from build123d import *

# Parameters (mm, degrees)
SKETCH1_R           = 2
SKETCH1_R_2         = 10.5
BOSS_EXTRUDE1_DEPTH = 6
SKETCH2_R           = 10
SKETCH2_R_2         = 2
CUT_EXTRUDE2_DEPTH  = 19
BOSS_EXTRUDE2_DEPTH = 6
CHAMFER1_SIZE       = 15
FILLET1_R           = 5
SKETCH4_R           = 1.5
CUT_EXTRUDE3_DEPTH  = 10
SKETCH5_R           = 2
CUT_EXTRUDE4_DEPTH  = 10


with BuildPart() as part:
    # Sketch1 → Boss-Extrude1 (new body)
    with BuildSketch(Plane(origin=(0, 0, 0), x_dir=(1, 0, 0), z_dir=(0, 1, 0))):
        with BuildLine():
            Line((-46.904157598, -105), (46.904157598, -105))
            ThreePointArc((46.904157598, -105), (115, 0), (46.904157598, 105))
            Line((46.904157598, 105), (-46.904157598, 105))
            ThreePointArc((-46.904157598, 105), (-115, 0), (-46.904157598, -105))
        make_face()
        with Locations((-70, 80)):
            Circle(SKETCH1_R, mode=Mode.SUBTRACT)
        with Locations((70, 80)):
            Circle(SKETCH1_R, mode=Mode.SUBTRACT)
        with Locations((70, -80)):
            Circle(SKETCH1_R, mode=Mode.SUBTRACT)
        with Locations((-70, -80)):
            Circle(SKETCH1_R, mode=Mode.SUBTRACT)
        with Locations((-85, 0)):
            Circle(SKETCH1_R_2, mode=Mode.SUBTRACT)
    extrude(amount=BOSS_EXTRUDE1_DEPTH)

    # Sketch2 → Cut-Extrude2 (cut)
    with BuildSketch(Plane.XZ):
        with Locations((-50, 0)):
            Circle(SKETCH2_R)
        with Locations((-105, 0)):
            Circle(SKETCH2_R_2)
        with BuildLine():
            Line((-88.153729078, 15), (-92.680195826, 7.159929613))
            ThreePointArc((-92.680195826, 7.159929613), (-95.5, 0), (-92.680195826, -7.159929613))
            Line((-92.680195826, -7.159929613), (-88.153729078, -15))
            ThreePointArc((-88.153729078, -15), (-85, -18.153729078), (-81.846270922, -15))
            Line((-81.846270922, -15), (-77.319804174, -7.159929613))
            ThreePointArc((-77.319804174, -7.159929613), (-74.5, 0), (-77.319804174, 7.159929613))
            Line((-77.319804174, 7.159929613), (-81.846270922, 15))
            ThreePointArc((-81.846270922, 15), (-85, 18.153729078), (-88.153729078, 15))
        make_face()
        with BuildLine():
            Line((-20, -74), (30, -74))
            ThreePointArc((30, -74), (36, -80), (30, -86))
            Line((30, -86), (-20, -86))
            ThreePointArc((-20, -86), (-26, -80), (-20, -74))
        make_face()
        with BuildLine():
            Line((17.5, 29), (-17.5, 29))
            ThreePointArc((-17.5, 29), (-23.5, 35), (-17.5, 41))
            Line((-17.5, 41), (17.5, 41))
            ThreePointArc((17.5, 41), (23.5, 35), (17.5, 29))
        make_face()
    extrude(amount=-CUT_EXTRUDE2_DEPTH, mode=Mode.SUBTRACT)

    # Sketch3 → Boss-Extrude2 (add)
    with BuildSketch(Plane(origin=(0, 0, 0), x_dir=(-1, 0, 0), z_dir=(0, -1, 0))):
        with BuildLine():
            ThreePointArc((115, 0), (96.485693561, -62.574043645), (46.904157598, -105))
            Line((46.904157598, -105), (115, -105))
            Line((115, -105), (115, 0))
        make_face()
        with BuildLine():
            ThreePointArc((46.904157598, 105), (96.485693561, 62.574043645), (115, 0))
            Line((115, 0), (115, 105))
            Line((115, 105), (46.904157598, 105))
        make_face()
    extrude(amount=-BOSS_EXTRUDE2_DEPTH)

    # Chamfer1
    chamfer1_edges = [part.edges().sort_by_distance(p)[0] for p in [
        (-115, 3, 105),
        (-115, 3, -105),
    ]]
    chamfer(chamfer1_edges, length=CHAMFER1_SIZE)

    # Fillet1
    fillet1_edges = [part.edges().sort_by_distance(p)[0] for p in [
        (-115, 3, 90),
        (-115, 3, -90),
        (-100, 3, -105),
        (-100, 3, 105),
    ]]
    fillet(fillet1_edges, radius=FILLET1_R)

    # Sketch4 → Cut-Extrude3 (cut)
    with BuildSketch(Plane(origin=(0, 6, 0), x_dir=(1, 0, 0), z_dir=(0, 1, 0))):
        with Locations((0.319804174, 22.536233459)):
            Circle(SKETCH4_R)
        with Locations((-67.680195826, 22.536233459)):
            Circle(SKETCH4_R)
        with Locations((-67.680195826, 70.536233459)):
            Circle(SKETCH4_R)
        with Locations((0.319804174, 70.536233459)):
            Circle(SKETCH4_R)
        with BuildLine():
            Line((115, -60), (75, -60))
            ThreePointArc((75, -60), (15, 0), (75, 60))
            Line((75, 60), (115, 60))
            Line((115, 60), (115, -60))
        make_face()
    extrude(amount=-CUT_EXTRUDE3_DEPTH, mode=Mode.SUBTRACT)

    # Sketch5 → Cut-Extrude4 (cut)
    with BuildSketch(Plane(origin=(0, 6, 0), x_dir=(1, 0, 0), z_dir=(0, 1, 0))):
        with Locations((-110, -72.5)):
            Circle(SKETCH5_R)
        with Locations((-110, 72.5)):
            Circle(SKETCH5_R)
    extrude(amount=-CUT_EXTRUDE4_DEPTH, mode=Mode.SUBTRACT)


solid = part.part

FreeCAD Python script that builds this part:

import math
import FreeCAD as App
import Part
import Sketcher
Q = App.Units.Quantity


def edges_at(feature, points):
    """Names of the edges that pass closest to the given points."""
    edges = feature.Shape.Edges
    near = lambda p: min(range(len(edges)), key=lambda i: edges[i].distToShape(Part.Vertex(*p))[0])
    return sorted({f"Edge{near(p) + 1}" for p in points})

doc = App.newDocument("Part")
params = doc.addObject("Spreadsheet::Sheet", "Params")
for row, (alias, value) in enumerate([
    ("sketch1_diameter", "4 mm"),
    ("sketch1_diameter2", "21 mm"),
    ("sketch1_radius", "115 mm"),
    ("pad1_length", "6 mm"),
    ("sketch2_diameter", "20 mm"),
    ("sketch2_diameter2", "4 mm"),
    ("sketch2_radius", "6 mm"),
    ("sketch2_radius2", "10.5 mm"),
    ("sketch2_width", "50 mm"),
    ("pocket1_length", "19 mm"),
    ("sketch3_radius", "115 mm"),
    ("sketch3_height", "105 mm"),
    ("pad2_length", "6 mm"),
    ("chamfer_size", "15 mm"),
    ("fillet_radius", "5 mm"),
    ("sketch4_diameter", "3 mm"),
    ("sketch4_radius", "60 mm"),
    ("sketch4_width", "40 mm"),
    ("pocket2_length", "10 mm"),
    ("sketch5_diameter", "4 mm"),
    ("pocket3_length", "10 mm"),
], start=1):
    params.set(f"A{row}", alias)
    params.set(f"B{row}", "=" + value)
    params.setAlias(f"B{row}", alias)

body = doc.addObject("PartDesign::Body", "Body")

sketch1 = body.newObject("Sketcher::SketchObject", "Sketch")
sketch1.AttachmentSupport = (doc.getObject("XZ_Plane"), [""])
sketch1.MapMode = "FlatFace"
sketch1.addGeometry([
    Part.LineSegment(App.Vector(-46.9, 105, 0), App.Vector(46.9, 105, 0)),
    Part.ArcOfCircle(Part.Circle(App.Vector(0, 0, 0), App.Vector(0, 0, 1), 115), math.radians(-66), math.radians(66)),
    Part.LineSegment(App.Vector(46.9, -105, 0), App.Vector(-46.9, -105, 0)),
    Part.ArcOfCircle(Part.Circle(App.Vector(0, 0, 0), App.Vector(0, 0, 1), 115), math.radians(114), math.radians(246)),
    Part.Circle(App.Vector(-70, 80, 0), App.Vector(0, 0, 1), 2),
    Part.Circle(App.Vector(70, 80, 0), App.Vector(0, 0, 1), 2),
    Part.Circle(App.Vector(-85, 0, 0), App.Vector(0, 0, 1), 10.5),
    Part.Circle(App.Vector(-70, -80, 0), App.Vector(0, 0, 1), 2),
    Part.Circle(App.Vector(70, -80, 0), App.Vector(0, 0, 1), 2),
], False)
sketch1.addConstraint([
    Sketcher.Constraint("Coincident", 0, 2, 1, 2),
    Sketcher.Constraint("Coincident", 1, 1, 2, 1),
    Sketcher.Constraint("Coincident", 2, 2, 3, 2),
    Sketcher.Constraint("Coincident", 3, 1, 0, 1),
    Sketcher.Constraint("Horizontal", 0),
    Sketcher.Constraint("Horizontal", 2),
    Sketcher.Constraint("Coincident", 1, 3, -1, 1),
    Sketcher.Constraint("Coincident", 3, 3, -1, 1),
    Sketcher.Constraint("Equal", 1, 3),
    Sketcher.Constraint("Equal", 4, 5),
    Sketcher.Constraint("Equal", 5, 7),
    Sketcher.Constraint("Equal", 7, 8),
    Sketcher.Constraint("Symmetric", 5, 3, 7, 3, -1, 1),
    Sketcher.Constraint("Symmetric", 4, 3, 8, 3, -1, 1),
    Sketcher.Constraint("Symmetric", 4, 3, 5, 3, -2),
    Sketcher.Constraint("PointOnObject", 6, 3, -1),
    Sketcher.Constraint("Vertical", 0, 2, 1, 1),
    Sketcher.Constraint("Diameter", 4, Q("4 mm")),
    Sketcher.Constraint("Diameter", 6, Q("21 mm")),
    Sketcher.Constraint("Radius", 1, Q("115 mm")),
    Sketcher.Constraint("DistanceX", 4, 3, -1, 1, Q("70 mm")),
    Sketcher.Constraint("DistanceY", -1, 1, 4, 3, Q("80 mm")),
    Sketcher.Constraint("DistanceX", 6, 3, -1, 1, Q("85 mm")),
    Sketcher.Constraint("DistanceY", -1, 1, 0, 2, Q("105 mm")),
])
sketch1.setExpression("Constraints[17]", "Params.sketch1_diameter")
sketch1.setExpression("Constraints[18]", "Params.sketch1_diameter2")
sketch1.setExpression("Constraints[19]", "Params.sketch1_radius")
pad1 = body.newObject("PartDesign::Pad", "Pad")
pad1.Profile = sketch1
pad1.setExpression("Length", "Params.pad1_length")
pad1.Reversed = True

sketch2 = body.newObject("Sketcher::SketchObject", "Sketch001")
sketch2.AttachmentSupport = (doc.getObject("XZ_Plane"), [""])
sketch2.MapMode = "FlatFace"
sketch2.addGeometry([
    Part.Circle(App.Vector(-50, 0, 0), App.Vector(0, 0, 1), 10),
    Part.Circle(App.Vector(-105, 0, 0), App.Vector(0, 0, 1), 2),
    Part.LineSegment(App.Vector(-88.2, 15, 0), App.Vector(-92.7, 7.2, 0)),
    Part.ArcOfCircle(Part.Circle(App.Vector(-85, 0, 0), App.Vector(0, 0, 1), 10.5), math.radians(137), math.radians(223)),
    Part.LineSegment(App.Vector(-92.7, -7.2, 0), App.Vector(-88.2, -15, 0)),
    Part.ArcOfCircle(Part.Circle(App.Vector(-85, -15, 0), App.Vector(0, 0, 1), 3.2), math.radians(180), math.radians(360)),
    Part.LineSegment(App.Vector(-81.8, -15, 0), App.Vector(-77.3, -7.2, 0)),
    Part.ArcOfCircle(Part.Circle(App.Vector(-85, 0, 0), App.Vector(0, 0, 1), 10.5), math.radians(-43), math.radians(43)),
    Part.LineSegment(App.Vector(-77.3, 7.2, 0), App.Vector(-81.8, 15, 0)),
    Part.ArcOfCircle(Part.Circle(App.Vector(-85, 15, 0), App.Vector(0, 0, 1), 3.2), math.radians(0), math.radians(180)),
    Part.LineSegment(App.Vector(30, -74, 0), App.Vector(-20, -74, 0)),
    Part.ArcOfCircle(Part.Circle(App.Vector(-20, -80, 0), App.Vector(0, 0, 1), 6), math.radians(90), math.radians(270)),
    Part.LineSegment(App.Vector(-20, -86, 0), App.Vector(30, -86, 0)),
    Part.ArcOfCircle(Part.Circle(App.Vector(30, -80, 0), App.Vector(0, 0, 1), 6), math.radians(-90), math.radians(90)),
    Part.LineSegment(App.Vector(-17.5, 29, 0), App.Vector(17.5, 29, 0)),
    Part.ArcOfCircle(Part.Circle(App.Vector(17.5, 35, 0), App.Vector(0, 0, 1), 6), math.radians(-90), math.radians(90)),
    Part.LineSegment(App.Vector(17.5, 41, 0), App.Vector(-17.5, 41, 0)),
    Part.ArcOfCircle(Part.Circle(App.Vector(-17.5, 35, 0), App.Vector(0, 0, 1), 6), math.radians(90), math.radians(270)),
], False)
sketch2.addConstraint([
    Sketcher.Constraint("Coincident", 2, 2, 3, 1),
    Sketcher.Constraint("Coincident", 3, 2, 4, 1),
    Sketcher.Constraint("Coincident", 4, 2, 5, 1),
    Sketcher.Constraint("Coincident", 5, 2, 6, 1),
    Sketcher.Constraint("Coincident", 6, 2, 7, 1),
    Sketcher.Constraint("Coincident", 7, 2, 8, 1),
    Sketcher.Constraint("Coincident", 8, 2, 9, 1),
    Sketcher.Constraint("Coincident", 9, 2, 2, 1),
    Sketcher.Constraint("Tangent", 10, 2, 11, 1),
    Sketcher.Constraint("Tangent", 11, 2, 12, 1),
    Sketcher.Constraint("Tangent", 12, 2, 13, 1),
    Sketcher.Constraint("Tangent", 13, 2, 10, 1),
    Sketcher.Constraint("Tangent", 14, 2, 15, 1),
    Sketcher.Constraint("Tangent", 15, 2, 16, 1),
    Sketcher.Constraint("Tangent", 16, 2, 17, 1),
    Sketcher.Constraint("Tangent", 17, 2, 14, 1),
    Sketcher.Constraint("Horizontal", 10),
    Sketcher.Constraint("Horizontal", 12),
    Sketcher.Constraint("Horizontal", 14),
    Sketcher.Constraint("Horizontal", 16),
    Sketcher.Constraint("Coincident", 7, 3, 3, 3),
    Sketcher.Constraint("Equal", 3, 7),
    Sketcher.Constraint("Equal", 5, 9),
    Sketcher.Constraint("Equal", 13, 15),
    Sketcher.Constraint("Symmetric", 5, 3, 9, 3, -1),
    Sketcher.Constraint("Symmetric", 2, 2, 3, 2, -1),
    Sketcher.Constraint("PointOnObject", 0, 3, -1),
    Sketcher.Constraint("PointOnObject", 1, 3, -1),
    Sketcher.Constraint("Parallel", 2, 6),
    Sketcher.Constraint("Parallel", 4, 8),
    Sketcher.Constraint("Horizontal", 5, 3, 4, 2),
    Sketcher.Constraint("Horizontal", 4, 2, 5, 2),
    Sketcher.Constraint("Horizontal", 3, 2, 6, 2),
    Sketcher.Constraint("Horizontal", 2, 2, 7, 2),
    Sketcher.Constraint("Horizontal", 9, 3, 8, 2),
    Sketcher.Constraint("Diameter", 0, Q("20 mm")),
    Sketcher.Constraint("Diameter", 1, Q("4 mm")),
    Sketcher.Constraint("Radius", 11, Q("6 mm")),
    Sketcher.Constraint("Radius", 3, Q("10.5 mm")),
    Sketcher.Constraint("DistanceX", 10, 2, 10, 1, Q("50 mm")),
    Sketcher.Constraint("DistanceX", 14, 1, 14, 2, Q("35 mm")),
    Sketcher.Constraint("Angle", 2, Q("-120 deg")),
    Sketcher.Constraint("DistanceX", 0, 3, -1, 1, Q("50 mm")),
    Sketcher.Constraint("DistanceX", 1, 3, -1, 1, Q("105 mm")),
    Sketcher.Constraint("DistanceX", 3, 3, -1, 1, Q("85 mm")),
    Sketcher.Constraint("DistanceY", 5, 3, -1, 1, Q("15 mm")),
    Sketcher.Constraint("DistanceX", 11, 3, -1, 1, Q("20 mm")),
    Sketcher.Constraint("DistanceY", 11, 3, -1, 1, Q("80 mm")),
    Sketcher.Constraint("DistanceY", -1, 1, 15, 3, Q("35 mm")),
    Sketcher.Constraint("DistanceX", -1, 1, 15, 3, Q("17.5 mm")),
    Sketcher.Constraint("Radius", 5, Q("3.153729 mm")),
])
sketch2.setExpression("Constraints[35]", "Params.sketch2_diameter")
sketch2.setExpression("Constraints[36]", "Params.sketch2_diameter2")
sketch2.setExpression("Constraints[37]", "Params.sketch2_radius")
sketch2.setExpression("Constraints[38]", "Params.sketch2_radius2")
sketch2.setExpression("Constraints[39]", "Params.sketch2_width")
pocket1 = body.newObject("PartDesign::Pocket", "Pocket")
pocket1.Profile = sketch2
pocket1.setExpression("Length", "Params.pocket1_length")

sketch3 = body.newObject("Sketcher::SketchObject", "Sketch002")
sketch3.AttachmentSupport = (doc.getObject("XZ_Plane"), [""])
sketch3.MapMode = "FlatFace"
sketch3.addGeometry([
    Part.ArcOfCircle(Part.Circle(App.Vector(0, 0, 0), App.Vector(0, 0, 1), 115), math.radians(114), math.radians(180)),
    Part.LineSegment(App.Vector(-47, 105, 0), App.Vector(-115, 105, 0)),
    Part.LineSegment(App.Vector(-115, 105, 0), App.Vector(-115, 0, 0)),
    Part.ArcOfCircle(Part.Circle(App.Vector(0, 0, 0), App.Vector(0, 0, 1), 115), math.radians(180), math.radians(246)),
    Part.LineSegment(App.Vector(-115, 0, 0), App.Vector(-115, -105, 0)),
    Part.LineSegment(App.Vector(-115, -105, 0), App.Vector(-47, -105, 0)),
], False)
sketch3.addConstraint([
    Sketcher.Constraint("Coincident", 0, 1, 1, 1),
    Sketcher.Constraint("Coincident", 1, 2, 2, 1),
    Sketcher.Constraint("Tangent", 2, 2, 0, 2),
    Sketcher.Constraint("Tangent", 3, 1, 4, 1),
    Sketcher.Constraint("Coincident", 4, 2, 5, 1),
    Sketcher.Constraint("Coincident", 5, 2, 3, 2),
    Sketcher.Constraint("Horizontal", 1),
    Sketcher.Constraint("Vertical", 2),
    Sketcher.Constraint("Vertical", 4),
    Sketcher.Constraint("Horizontal", 5),
    Sketcher.Constraint("Coincident", 0, 3, -1, 1),
    Sketcher.Constraint("Coincident", 3, 3, -1, 1),
    Sketcher.Constraint("Equal", 0, 3),
    Sketcher.Constraint("Vertical", 0, 1, 5, 2),
    Sketcher.Constraint("Radius", 0, Q("115 mm")),
    Sketcher.Constraint("DistanceY", 2, 2, 2, 1, Q("105 mm")),
])
sketch3.setExpression("Constraints[14]", "Params.sketch3_radius")
sketch3.setExpression("Constraints[15]", "Params.sketch3_height")
pad2 = body.newObject("PartDesign::Pad", "Pad001")
pad2.Profile = sketch3
pad2.setExpression("Length", "Params.pad2_length")
pad2.Reversed = True
doc.recompute()

chamfer = body.newObject("PartDesign::Chamfer", "Chamfer")
chamfer.Base = (pad2, edges_at(pad2, [(-115, 3, 105), (-115, 3, -105)]))
chamfer.setExpression("Size", "Params.chamfer_size")
doc.recompute()

fillet = body.newObject("PartDesign::Fillet", "Fillet")
fillet.Base = (chamfer, edges_at(chamfer, [
    (-115, 3, 90),
    (-115, 3, -90),
    (-100, 3, -105),
    (-100, 3, 105),
]))
fillet.setExpression("Radius", "Params.fillet_radius")

sketch4 = body.newObject("Sketcher::SketchObject", "Sketch003")
sketch4.AttachmentSupport = (doc.getObject("XZ_Plane"), [""])
sketch4.MapMode = "FlatFace"
sketch4.AttachmentOffset = App.Placement(App.Vector(0, 0, -6), App.Rotation())
sketch4.addGeometry([
    Part.Circle(App.Vector(0.3, -22.5, 0), App.Vector(0, 0, 1), 1.5),
    Part.Circle(App.Vector(-67.7, -22.5, 0), App.Vector(0, 0, 1), 1.5),
    Part.Circle(App.Vector(-67.7, -70.5, 0), App.Vector(0, 0, 1), 1.5),
    Part.Circle(App.Vector(0.3, -70.5, 0), App.Vector(0, 0, 1), 1.5),
    Part.LineSegment(App.Vector(75, 60, 0), App.Vector(115, 60, 0)),
    Part.LineSegment(App.Vector(115, 60, 0), App.Vector(115, -60, 0)),
    Part.LineSegment(App.Vector(115, -60, 0), App.Vector(75, -60, 0)),
    Part.ArcOfCircle(Part.Circle(App.Vector(75, 0, 0), App.Vector(0, 0, 1), 60), math.radians(90), math.radians(270)),
], False)
sketch4.addConstraint([
    Sketcher.Constraint("Coincident", 4, 2, 5, 1),
    Sketcher.Constraint("Coincident", 5, 2, 6, 1),
    Sketcher.Constraint("Tangent", 6, 2, 7, 2),
    Sketcher.Constraint("Tangent", 7, 1, 4, 1),
    Sketcher.Constraint("Horizontal", 4),
    Sketcher.Constraint("Vertical", 5),
    Sketcher.Constraint("Horizontal", 6),
    Sketcher.Constraint("Equal", 0, 1),
    Sketcher.Constraint("Equal", 1, 2),
    Sketcher.Constraint("Equal", 2, 3),
    Sketcher.Constraint("PointOnObject", 7, 3, -1),
    Sketcher.Constraint("Horizontal", 0, 3, 1, 3),
    Sketcher.Constraint("Horizontal", 2, 3, 3, 3),
    Sketcher.Constraint("Vertical", 1, 3, 2, 3),
    Sketcher.Constraint("Vertical", 0, 3, 3, 3),
    Sketcher.Constraint("Diameter", 0, Q("3 mm")),
    Sketcher.Constraint("Radius", 7, Q("60 mm")),
    Sketcher.Constraint("DistanceX", 4, 1, 4, 2, Q("40 mm")),
    Sketcher.Constraint("DistanceX", -1, 1, 7, 3, Q("75 mm")),
    Sketcher.Constraint("DistanceX", 1, 3, 0, 3, Q("68 mm")),
    Sketcher.Constraint("DistanceY", 2, 3, 1, 3, Q("48 mm")),
    Sketcher.Constraint("DistanceX", -1, 1, 0, 3, Q("0.319804 mm")),
    Sketcher.Constraint("DistanceY", 0, 3, -1, 1, Q("22.536233 mm")),
])
sketch4.setExpression("Constraints[15]", "Params.sketch4_diameter")
sketch4.setExpression("Constraints[16]", "Params.sketch4_radius")
sketch4.setExpression("Constraints[17]", "Params.sketch4_width")
pocket2 = body.newObject("PartDesign::Pocket", "Pocket001")
pocket2.Profile = sketch4
pocket2.setExpression("Length", "Params.pocket2_length")
pocket2.Reversed = True

sketch5 = body.newObject("Sketcher::SketchObject", "Sketch004")
sketch5.AttachmentSupport = (doc.getObject("XZ_Plane"), [""])
sketch5.MapMode = "FlatFace"
sketch5.AttachmentOffset = App.Placement(App.Vector(0, 0, -6), App.Rotation())
sketch5.addGeometry([
    Part.Circle(App.Vector(-110, 72.5, 0), App.Vector(0, 0, 1), 2),
    Part.Circle(App.Vector(-110, -72.5, 0), App.Vector(0, 0, 1), 2),
], False)
sketch5.addConstraint([
    Sketcher.Constraint("Equal", 0, 1),
    Sketcher.Constraint("Symmetric", 0, 3, 1, 3, -1),
    Sketcher.Constraint("Diameter", 0, Q("4 mm")),
    Sketcher.Constraint("DistanceX", 0, 3, -1, 1, Q("110 mm")),
    Sketcher.Constraint("DistanceY", 1, 3, 0, 3, Q("145 mm")),
])
sketch5.setExpression("Constraints[2]", "Params.sketch5_diameter")
pocket3 = body.newObject("PartDesign::Pocket", "Pocket002")
pocket3.Profile = sketch5
pocket3.setExpression("Length", "Params.pocket3_length")
pocket3.Reversed = True

doc.recompute()
